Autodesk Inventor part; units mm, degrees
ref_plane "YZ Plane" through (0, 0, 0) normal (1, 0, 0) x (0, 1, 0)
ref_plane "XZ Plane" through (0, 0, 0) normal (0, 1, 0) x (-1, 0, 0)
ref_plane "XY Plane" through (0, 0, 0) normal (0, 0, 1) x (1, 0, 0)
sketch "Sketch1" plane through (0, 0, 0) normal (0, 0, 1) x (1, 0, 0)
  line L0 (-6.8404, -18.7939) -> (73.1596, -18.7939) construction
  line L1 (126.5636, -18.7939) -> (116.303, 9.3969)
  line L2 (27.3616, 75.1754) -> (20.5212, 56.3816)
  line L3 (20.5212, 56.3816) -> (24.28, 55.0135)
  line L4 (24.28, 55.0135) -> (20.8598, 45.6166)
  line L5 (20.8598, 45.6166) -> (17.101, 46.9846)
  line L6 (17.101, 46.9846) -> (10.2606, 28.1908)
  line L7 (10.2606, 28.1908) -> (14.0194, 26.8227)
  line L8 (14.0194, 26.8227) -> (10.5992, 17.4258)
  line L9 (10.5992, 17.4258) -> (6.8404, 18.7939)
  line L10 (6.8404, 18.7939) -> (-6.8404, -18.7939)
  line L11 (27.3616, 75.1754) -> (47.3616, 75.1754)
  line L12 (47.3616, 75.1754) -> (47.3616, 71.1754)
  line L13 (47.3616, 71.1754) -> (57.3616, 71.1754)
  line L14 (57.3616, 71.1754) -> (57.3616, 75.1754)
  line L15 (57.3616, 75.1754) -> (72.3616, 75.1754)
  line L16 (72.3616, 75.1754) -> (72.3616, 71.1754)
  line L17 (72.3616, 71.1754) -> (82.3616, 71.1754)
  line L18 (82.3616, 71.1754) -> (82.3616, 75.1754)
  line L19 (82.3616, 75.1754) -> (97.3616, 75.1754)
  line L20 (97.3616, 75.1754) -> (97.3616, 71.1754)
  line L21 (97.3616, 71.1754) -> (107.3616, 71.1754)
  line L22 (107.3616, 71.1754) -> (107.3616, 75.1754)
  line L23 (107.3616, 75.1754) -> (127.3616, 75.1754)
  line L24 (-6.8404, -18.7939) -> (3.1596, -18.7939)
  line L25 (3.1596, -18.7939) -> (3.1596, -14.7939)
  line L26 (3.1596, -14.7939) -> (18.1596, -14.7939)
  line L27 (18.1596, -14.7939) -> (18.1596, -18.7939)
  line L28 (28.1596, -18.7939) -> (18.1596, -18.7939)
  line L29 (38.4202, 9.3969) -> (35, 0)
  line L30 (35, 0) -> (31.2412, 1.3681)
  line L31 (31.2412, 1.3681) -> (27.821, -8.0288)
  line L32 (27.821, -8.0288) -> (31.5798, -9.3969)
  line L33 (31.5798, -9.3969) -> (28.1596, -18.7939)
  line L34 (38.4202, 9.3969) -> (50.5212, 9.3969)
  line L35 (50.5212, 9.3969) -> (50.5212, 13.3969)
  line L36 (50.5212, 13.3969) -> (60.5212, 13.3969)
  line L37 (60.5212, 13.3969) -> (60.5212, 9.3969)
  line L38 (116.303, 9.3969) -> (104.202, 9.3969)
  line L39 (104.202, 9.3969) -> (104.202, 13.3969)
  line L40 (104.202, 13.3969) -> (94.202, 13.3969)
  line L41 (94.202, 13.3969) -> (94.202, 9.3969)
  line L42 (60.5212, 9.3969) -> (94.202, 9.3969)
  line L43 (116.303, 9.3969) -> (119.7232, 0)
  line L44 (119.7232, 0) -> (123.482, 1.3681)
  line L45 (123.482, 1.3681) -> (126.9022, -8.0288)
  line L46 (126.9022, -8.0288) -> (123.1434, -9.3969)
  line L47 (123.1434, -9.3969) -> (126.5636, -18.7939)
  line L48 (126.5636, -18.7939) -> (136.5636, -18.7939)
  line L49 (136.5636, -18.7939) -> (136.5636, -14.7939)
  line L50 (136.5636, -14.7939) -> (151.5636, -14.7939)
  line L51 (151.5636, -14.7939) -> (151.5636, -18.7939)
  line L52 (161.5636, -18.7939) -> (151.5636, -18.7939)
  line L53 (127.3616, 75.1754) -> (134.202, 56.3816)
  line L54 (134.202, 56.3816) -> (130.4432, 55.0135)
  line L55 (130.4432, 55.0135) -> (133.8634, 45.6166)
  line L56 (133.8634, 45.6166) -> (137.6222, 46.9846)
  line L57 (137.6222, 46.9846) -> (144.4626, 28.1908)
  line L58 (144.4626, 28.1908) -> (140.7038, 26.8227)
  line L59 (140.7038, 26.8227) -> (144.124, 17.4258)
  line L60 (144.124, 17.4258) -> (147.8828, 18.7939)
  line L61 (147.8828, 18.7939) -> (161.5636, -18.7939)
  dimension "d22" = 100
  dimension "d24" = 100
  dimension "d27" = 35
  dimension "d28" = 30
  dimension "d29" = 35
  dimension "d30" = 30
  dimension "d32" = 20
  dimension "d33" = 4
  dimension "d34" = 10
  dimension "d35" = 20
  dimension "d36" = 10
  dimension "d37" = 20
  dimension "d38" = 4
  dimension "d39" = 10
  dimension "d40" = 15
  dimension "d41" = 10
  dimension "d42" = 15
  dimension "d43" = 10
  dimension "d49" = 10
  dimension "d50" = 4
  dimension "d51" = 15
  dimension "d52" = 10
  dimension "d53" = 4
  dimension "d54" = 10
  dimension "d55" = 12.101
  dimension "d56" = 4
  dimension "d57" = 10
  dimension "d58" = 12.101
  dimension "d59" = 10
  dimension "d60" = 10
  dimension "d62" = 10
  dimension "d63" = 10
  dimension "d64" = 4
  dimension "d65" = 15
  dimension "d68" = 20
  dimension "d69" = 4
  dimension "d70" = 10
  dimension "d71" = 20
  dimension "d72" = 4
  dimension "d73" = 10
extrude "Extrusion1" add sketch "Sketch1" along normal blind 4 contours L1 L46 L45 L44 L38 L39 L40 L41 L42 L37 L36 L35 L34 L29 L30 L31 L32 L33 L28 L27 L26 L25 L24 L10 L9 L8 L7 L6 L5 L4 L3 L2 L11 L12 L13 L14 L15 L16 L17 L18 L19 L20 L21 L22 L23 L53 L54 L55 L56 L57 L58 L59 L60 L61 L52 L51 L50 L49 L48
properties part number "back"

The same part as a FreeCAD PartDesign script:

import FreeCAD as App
import Part
import Sketcher
from FreeCAD import Vector
Q = App.Units.Quantity


def add_polygon(sketch, points):
    """Adds a closed chain of lines whose ends are joined by coincident constraints."""
    first, n = sketch.GeometryCount, len(points)
    for a, b in zip(points, points[1:] + points[:1]):
        sketch.addGeometry(Part.LineSegment(App.Vector(*a, 0), App.Vector(*b, 0)), False)
    for i in range(n):
        sketch.addConstraint(Sketcher.Constraint("Coincident", first + i, 2, first + (i + 1) % n, 1))

doc = App.newDocument("Part")
body = doc.addObject("PartDesign::Body", "Body")

sketch1 = doc.addObject("Sketcher::SketchObject", "Sketch")
body.addObject(sketch1)
sketch1.AttachmentSupport = (doc.XY_Plane, [""])
sketch1.MapMode = "FlatFace"
add_polygon(sketch1, [(123.1, -9.4), (126.6, -18.8), (136.6, -18.8), (136.6, -14.8), (151.6, -14.8), (151.6, -18.8), (161.6, -18.8), (147.9, 18.8), (144.1, 17.4), (140.7, 26.8), (144.5, 28.2), (137.6, 47), (133.9, 45.6), (130.4, 55), (134.2, 56.4), (127.4, 75.2), (107.4, 75.2), (107.4, 71.2), (97.4, 71.2), (97.4, 75.2), (82.4, 75.2), (82.4, 71.2), (72.4, 71.2), (72.4, 75.2), (57.4, 75.2), (57.4, 71.2), (47.4, 71.2), (47.4, 75.2), (27.4, 75.2), (20.5, 56.4), (24.3, 55), (20.9, 45.6), (17.1, 47), (10.3, 28.2), (14, 26.8), (10.6, 17.4), (6.8, 18.8), (-6.8, -18.8), (3.2, -18.8), (3.2, -14.8), (18.2, -14.8), (18.2, -18.8), (28.2, -18.8), (31.6, -9.4), (27.8, -8), (31.2, 1.4), (35, 0), (38.4, 9.4), (50.5, 9.4), (50.5, 13.4), (60.5, 13.4), (60.5, 9.4), (94.2, 9.4), (94.2, 13.4), (104.2, 13.4), (104.2, 9.4), (116.3, 9.4), (119.7, 0), (123.5, 1.4), (126.9, -8)])
sketch1.addConstraint(Sketcher.Constraint("Horizontal", 1))
sketch1.addConstraint(Sketcher.Constraint("Vertical", 2))
sketch1.addConstraint(Sketcher.Constraint("Horizontal", 3))
sketch1.addConstraint(Sketcher.Constraint("Vertical", 4))
sketch1.addConstraint(Sketcher.Constraint("Horizontal", 5))
sketch1.addConstraint(Sketcher.Constraint("Horizontal", 15))
sketch1.addConstraint(Sketcher.Constraint("Vertical", 16))
sketch1.addConstraint(Sketcher.Constraint("Horizontal", 17))
sketch1.addConstraint(Sketcher.Constraint("Vertical", 18))
sketch1.addConstraint(Sketcher.Constraint("Horizontal", 19))
sketch1.addConstraint(Sketcher.Constraint("Vertical", 20))
sketch1.addConstraint(Sketcher.Constraint("Horizontal", 21))
sketch1.addConstraint(Sketcher.Constraint("Vertical", 22))
sketch1.addConstraint(Sketcher.Constraint("Horizontal", 23))
sketch1.addConstraint(Sketcher.Constraint("Vertical", 24))
sketch1.addConstraint(Sketcher.Constraint("Horizontal", 25))
sketch1.addConstraint(Sketcher.Constraint("Vertical", 26))
sketch1.addConstraint(Sketcher.Constraint("Horizontal", 27))
sketch1.addConstraint(Sketcher.Constraint("Horizontal", 37))
sketch1.addConstraint(Sketcher.Constraint("Vertical", 38))
sketch1.addConstraint(Sketcher.Constraint("Horizontal", 39))
sketch1.addConstraint(Sketcher.Constraint("Vertical", 40))
sketch1.addConstraint(Sketcher.Constraint("Horizontal", 41))
sketch1.addConstraint(Sketcher.Constraint("Horizontal", 47))
sketch1.addConstraint(Sketcher.Constraint("Vertical", 48))
sketch1.addConstraint(Sketcher.Constraint("Horizontal", 49))
sketch1.addConstraint(Sketcher.Constraint("Vertical", 50))
sketch1.addConstraint(Sketcher.Constraint("Horizontal", 51))
sketch1.addConstraint(Sketcher.Constraint("Vertical", 52))
sketch1.addConstraint(Sketcher.Constraint("Horizontal", 53))
sketch1.addConstraint(Sketcher.Constraint("Vertical", 54))
sketch1.addConstraint(Sketcher.Constraint("Horizontal", 55))
sketch1.addConstraint(Sketcher.Constraint("Symmetric", 35, 2, 36, 2, -1, 1))
sketch1.addConstraint(Sketcher.Constraint("PointOnObject", 45, 2, -1))
sketch1.addConstraint(Sketcher.Constraint("PointOnObject", 56, 2, -1))
sketch1.addConstraint(Sketcher.Constraint("Parallel", 0, 6))
sketch1.addConstraint(Sketcher.Constraint("Perpendicular", 6, 7))
sketch1.addConstraint(Sketcher.Constraint("Perpendicular", 7, 8))
sketch1.addConstraint(Sketcher.Constraint("Perpendicular", 8, 9))
sketch1.addConstraint(Sketcher.Constraint("Perpendicular", 9, 10))
sketch1.addConstraint(Sketcher.Constraint("Perpendicular", 10, 11))
sketch1.addConstraint(Sketcher.Constraint("Perpendicular", 11, 12))
sketch1.addConstraint(Sketcher.Constraint("Perpendicular", 12, 13))
sketch1.addConstraint(Sketcher.Constraint("Perpendicular", 13, 14))
sketch1.addConstraint(Sketcher.Constraint("Perpendicular", 28, 29))
sketch1.addConstraint(Sketcher.Constraint("Perpendicular", 29, 30))
sketch1.addConstraint(Sketcher.Constraint("Perpendicular", 30, 31))
sketch1.addConstraint(Sketcher.Constraint("Perpendicular", 31, 32))
sketch1.addConstraint(Sketcher.Constraint("Perpendicular", 32, 33))
sketch1.addConstraint(Sketcher.Constraint("Perpendicular", 33, 34))
sketch1.addConstraint(Sketcher.Constraint("Perpendicular", 34, 35))
sketch1.addConstraint(Sketcher.Constraint("Perpendicular", 35, 36))
sketch1.addConstraint(Sketcher.Constraint("Parallel", 36, 42))
sketch1.addConstraint(Sketcher.Constraint("Perpendicular", 42, 43))
sketch1.addConstraint(Sketcher.Constraint("Perpendicular", 43, 44))
sketch1.addConstraint(Sketcher.Constraint("Perpendicular", 44, 45))
sketch1.addConstraint(Sketcher.Constraint("Perpendicular", 45, 46))
sketch1.addConstraint(Sketcher.Constraint("Parallel", 14, 56))
sketch1.addConstraint(Sketcher.Constraint("Perpendicular", 56, 57))
sketch1.addConstraint(Sketcher.Constraint("Perpendicular", 57, 58))
sketch1.addConstraint(Sketcher.Constraint("Perpendicular", 58, 59))
sketch1.addConstraint(Sketcher.Constraint("Horizontal", 1, 2, 4, 2))
sketch1.addConstraint(Sketcher.Constraint("Horizontal", 15, 2, 18, 2))
sketch1.addConstraint(Sketcher.Constraint("Horizontal", 17, 2, 20, 2))
sketch1.addConstraint(Sketcher.Constraint("Horizontal", 19, 2, 22, 2))
sketch1.addConstraint(Sketcher.Constraint("Horizontal", 21, 2, 24, 2))
sketch1.addConstraint(Sketcher.Constraint("Horizontal", 23, 2, 26, 2))
sketch1.addConstraint(Sketcher.Constraint("Horizontal", 13, 2, 28, 2))
sketch1.addConstraint(Sketcher.Constraint("Horizontal", 12, 2, 29, 2))
sketch1.addConstraint(Sketcher.Constraint("Horizontal", 11, 2, 30, 2))
sketch1.addConstraint(Sketcher.Constraint("Horizontal", 10, 2, 31, 2))
sketch1.addConstraint(Sketcher.Constraint("Horizontal", 9, 2, 32, 2))
sketch1.addConstraint(Sketcher.Constraint("Horizontal", 8, 2, 33, 2))
sketch1.addConstraint(Sketcher.Constraint("Horizontal", 7, 2, 34, 2))
sketch1.addConstraint(Sketcher.Constraint("Horizontal", 6, 2, 35, 2))
sketch1.addConstraint(Sketcher.Constraint("Horizontal", 5, 2, 36, 2))
sketch1.addConstraint(Sketcher.Constraint("Horizontal", 3, 2, 38, 2))
sketch1.addConstraint(Sketcher.Constraint("Horizontal", 37, 2, 40, 2))
sketch1.addConstraint(Sketcher.Constraint("Horizontal", 47, 2, 50, 2))
sketch1.addConstraint(Sketcher.Constraint("Horizontal", 49, 2, 52, 2))
sketch1.addConstraint(Sketcher.Constraint("Horizontal", 51, 2, 54, 2))
sketch1.addConstraint(Sketcher.Constraint("Horizontal", 44, 2, 57, 2))
sketch1.addConstraint(Sketcher.Constraint("Horizontal", 43, 2, 58, 2))
sketch1.addConstraint(Sketcher.Constraint("Horizontal", 42, 2, 59, 2))
sketch1.addConstraint(Sketcher.Constraint("Equal", 1, 5))
sketch1.addConstraint(Sketcher.Constraint("Equal", 5, 17))
sketch1.addConstraint(Sketcher.Constraint("Equal", 3, 19))
sketch1.addConstraint(Sketcher.Constraint("Equal", 17, 21))
sketch1.addConstraint(Sketcher.Constraint("Equal", 19, 23))
sketch1.addConstraint(Sketcher.Constraint("Equal", 21, 25))
sketch1.addConstraint(Sketcher.Constraint("Equal", 15, 27))
sketch1.addConstraint(Sketcher.Constraint("Equal", 25, 37))
sketch1.addConstraint(Sketcher.Constraint("Equal", 23, 39))
sketch1.addConstraint(Sketcher.Constraint("Equal", 37, 41))
sketch1.addConstraint(Sketcher.Constraint("Equal", 41, 49))
sketch1.addConstraint(Sketcher.Constraint("Equal", 49, 53))
sketch1.addConstraint(Sketcher.Constraint("Equal", 47, 55))
sketch1.addConstraint(Sketcher.Constraint("Equal", 4, 16))
sketch1.addConstraint(Sketcher.Constraint("Equal", 40, 48))
sketch1.addConstraint(Sketcher.Constraint("Equal", 0, 8))
sketch1.addConstraint(Sketcher.Constraint("Equal", 7, 9))
sketch1.addConstraint(Sketcher.Constraint("Equal", 9, 11))
sketch1.addConstraint(Sketcher.Constraint("Equal", 8, 12))
sketch1.addConstraint(Sketcher.Constraint("Equal", 11, 13))
sketch1.addConstraint(Sketcher.Constraint("Equal", 10, 14))
sketch1.addConstraint(Sketcher.Constraint("Equal", 14, 28))
sketch1.addConstraint(Sketcher.Constraint("Equal", 35, 43))
sketch1.addConstraint(Sketcher.Constraint("Equal", 42, 44))
sketch1.addConstraint(Sketcher.Constraint("Equal", 43, 45))
sketch1.addConstraint(Sketcher.Constraint("Equal", 44, 46))
sketch1.addConstraint(Sketcher.Constraint("DistanceX", 1, 1, 1, 2, Q("10 mm")))
sketch1.addConstraint(Sketcher.Constraint("DistanceX", 3, 1, 3, 2, Q("15 mm")))
sketch1.addConstraint(Sketcher.Constraint("DistanceX", 15, 2, 15, 1, Q("20 mm")))
sketch1.addConstraint(Sketcher.Constraint("DistanceY", 2, 1, 2, 2, Q("4 mm")))
sketch1.addConstraint(Sketcher.Constraint("Angle", 9, Q("20 deg")))
sketch1.addConstraint(Sketcher.Constraint("Distance", 0, Q("10 mm")))
sketch1.addConstraint(Sketcher.Constraint("Distance", 7, Q("4 mm")))
sketch1.addConstraint(Sketcher.Constraint("Distance", 10, Q("20 mm")))
sketch1.addConstraint(Sketcher.Constraint("DistanceX", 47, 1, 47, 2, Q("12.101 mm")))
pad1 = doc.addObject("PartDesign::Pad", "Pad")
body.addObject(pad1)
pad1.Profile = sketch1
pad1.Length = 4

doc.recompute()
